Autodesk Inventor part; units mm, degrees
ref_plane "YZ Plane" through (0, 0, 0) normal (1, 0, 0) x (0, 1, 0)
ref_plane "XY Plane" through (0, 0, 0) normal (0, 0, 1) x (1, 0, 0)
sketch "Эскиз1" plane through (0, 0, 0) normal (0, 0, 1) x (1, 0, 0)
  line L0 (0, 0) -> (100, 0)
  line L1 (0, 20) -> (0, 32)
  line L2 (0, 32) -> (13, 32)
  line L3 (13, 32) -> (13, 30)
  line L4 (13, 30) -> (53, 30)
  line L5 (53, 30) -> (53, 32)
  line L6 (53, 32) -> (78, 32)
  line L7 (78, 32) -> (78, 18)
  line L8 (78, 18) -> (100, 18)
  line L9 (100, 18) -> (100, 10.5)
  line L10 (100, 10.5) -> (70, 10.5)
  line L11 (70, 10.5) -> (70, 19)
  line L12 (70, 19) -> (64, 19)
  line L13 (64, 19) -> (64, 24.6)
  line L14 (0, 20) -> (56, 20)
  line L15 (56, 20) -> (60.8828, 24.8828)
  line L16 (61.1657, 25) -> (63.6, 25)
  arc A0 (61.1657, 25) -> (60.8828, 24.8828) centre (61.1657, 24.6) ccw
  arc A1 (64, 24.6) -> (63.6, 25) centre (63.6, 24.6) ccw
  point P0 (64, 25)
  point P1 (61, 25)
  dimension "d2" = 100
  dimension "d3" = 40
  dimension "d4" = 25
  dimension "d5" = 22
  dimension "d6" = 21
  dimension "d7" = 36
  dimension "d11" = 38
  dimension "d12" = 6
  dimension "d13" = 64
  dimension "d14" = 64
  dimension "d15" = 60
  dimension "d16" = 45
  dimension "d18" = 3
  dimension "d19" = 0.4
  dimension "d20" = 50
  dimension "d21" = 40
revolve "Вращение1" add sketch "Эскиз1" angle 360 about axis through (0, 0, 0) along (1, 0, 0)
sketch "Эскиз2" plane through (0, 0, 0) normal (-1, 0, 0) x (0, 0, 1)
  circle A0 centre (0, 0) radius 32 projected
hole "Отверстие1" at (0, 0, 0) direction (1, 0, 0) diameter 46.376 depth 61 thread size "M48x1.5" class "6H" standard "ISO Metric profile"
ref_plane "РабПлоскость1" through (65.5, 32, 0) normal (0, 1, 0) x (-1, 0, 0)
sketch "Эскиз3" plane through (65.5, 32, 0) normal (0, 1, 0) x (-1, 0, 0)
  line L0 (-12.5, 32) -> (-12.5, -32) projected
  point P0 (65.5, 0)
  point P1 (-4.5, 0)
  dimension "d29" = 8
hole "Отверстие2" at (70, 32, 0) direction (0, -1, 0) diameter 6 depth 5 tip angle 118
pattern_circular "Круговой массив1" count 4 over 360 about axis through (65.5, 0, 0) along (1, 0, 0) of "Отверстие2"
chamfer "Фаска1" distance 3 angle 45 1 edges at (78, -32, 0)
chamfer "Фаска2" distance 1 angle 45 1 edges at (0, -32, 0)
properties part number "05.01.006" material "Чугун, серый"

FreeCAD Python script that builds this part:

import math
import FreeCAD as App
import Part
import Sketcher
from FreeCAD import Vector
Q = App.Units.Quantity


def edges_at(feature, points):
    """Names of the edges that pass closest to the given points."""
    edges = feature.Shape.Edges
    near = lambda p: min(range(len(edges)), key=lambda i: edges[i].distToShape(Part.Vertex(*p))[0])
    return sorted({f"Edge{near(p) + 1}" for p in points})

doc = App.newDocument("Part")
params = doc.addObject("Spreadsheet::Sheet", "Params")
for row, (alias, value) in enumerate([
    ("sketch1_radius", "0.4 mm"),
    ("sketch1_width", "6 mm"),
    ("sketch1_width2", "22 mm"),
    ("sketch1_width3", "25 mm"),
    ("sketch1_width4", "40 mm"),
    ("revolution_angle", "360 deg"),
    ("hole_diameter", "46.376 mm"),
    ("hole_depth", "61 mm"),
    ("sketch3_diameter", "6 mm"),
    ("hole2_diameter", "6 mm"),
    ("hole2_depth", "5 mm"),
    ("chamfer_size", "3 mm"),
    ("chamfer2_size", "1 mm"),
], start=1):
    params.set(f"A{row}", alias)
    params.set(f"B{row}", "=" + value)
    params.setAlias(f"B{row}", alias)

body = doc.addObject("PartDesign::Body", "Body")

# Sketch on XY plane
sketch1 = body.newObject("Sketcher::SketchObject", "Sketch")
sketch1.AttachmentSupport = (doc.getObject("XY_Plane"), [""])
sketch1.MapMode = "FlatFace"
sketch1.addGeometry(Part.LineSegment(Vector(0, 32, 0), Vector(0, 20, 0)), False)
sketch1.addGeometry(Part.LineSegment(Vector(0, 20, 0), Vector(56, 20, 0)), False)
sketch1.addGeometry(Part.LineSegment(Vector(56, 20, 0), Vector(60.88, 24.88, 0)), False)
sketch1.addGeometry(Part.ArcOfCircle(Part.Circle(Vector(61.17, 24.6, 0), Vector(0, 0, 1), 0.4), math.radians(90), math.radians(135)), False)
sketch1.addGeometry(Part.LineSegment(Vector(61.17, 25, 0), Vector(63.6, 25, 0)), False)
sketch1.addGeometry(Part.ArcOfCircle(Part.Circle(Vector(63.6, 24.6, 0), Vector(0, 0, 1), 0.4), math.radians(0), math.radians(90)), False)
sketch1.addGeometry(Part.LineSegment(Vector(64, 24.6, 0), Vector(64, 19, 0)), False)
sketch1.addGeometry(Part.LineSegment(Vector(64, 19, 0), Vector(70, 19, 0)), False)
sketch1.addGeometry(Part.LineSegment(Vector(70, 19, 0), Vector(70, 10.5, 0)), False)
sketch1.addGeometry(Part.LineSegment(Vector(70, 10.5, 0), Vector(100, 10.5, 0)), False)
sketch1.addGeometry(Part.LineSegment(Vector(100, 10.5, 0), Vector(100, 18, 0)), False)
sketch1.addGeometry(Part.LineSegment(Vector(100, 18, 0), Vector(78, 18, 0)), False)
sketch1.addGeometry(Part.LineSegment(Vector(78, 18, 0), Vector(78, 32, 0)), False)
sketch1.addGeometry(Part.LineSegment(Vector(78, 32, 0), Vector(53, 32, 0)), False)
sketch1.addGeometry(Part.LineSegment(Vector(53, 32, 0), Vector(53, 30, 0)), False)
sketch1.addGeometry(Part.LineSegment(Vector(53, 30, 0), Vector(13, 30, 0)), False)
sketch1.addGeometry(Part.LineSegment(Vector(13, 30, 0), Vector(13, 32, 0)), False)
sketch1.addGeometry(Part.LineSegment(Vector(13, 32, 0), Vector(0, 32, 0)), False)
sketch1.addConstraint(Sketcher.Constraint("Coincident", 0, 2, 1, 1))
sketch1.addConstraint(Sketcher.Constraint("Coincident", 1, 2, 2, 1))
sketch1.addConstraint(Sketcher.Constraint("Tangent", 2, 2, 3, 2))
sketch1.addConstraint(Sketcher.Constraint("Tangent", 3, 1, 4, 1))
sketch1.addConstraint(Sketcher.Constraint("Tangent", 4, 2, 5, 2))
sketch1.addConstraint(Sketcher.Constraint("Tangent", 5, 1, 6, 1))
sketch1.addConstraint(Sketcher.Constraint("Coincident", 6, 2, 7, 1))
sketch1.addConstraint(Sketcher.Constraint("Coincident", 7, 2, 8, 1))
sketch1.addConstraint(Sketcher.Constraint("Coincident", 8, 2, 9, 1))
sketch1.addConstraint(Sketcher.Constraint("Coincident", 9, 2, 10, 1))
sketch1.addConstraint(Sketcher.Constraint("Coincident", 10, 2, 11, 1))
sketch1.addConstraint(Sketcher.Constraint("Coincident", 11, 2, 12, 1))
sketch1.addConstraint(Sketcher.Constraint("Coincident", 12, 2, 13, 1))
sketch1.addConstraint(Sketcher.Constraint("Coincident", 13, 2, 14, 1))
sketch1.addConstraint(Sketcher.Constraint("Coincident", 14, 2, 15, 1))
sketch1.addConstraint(Sketcher.Constraint("Coincident", 15, 2, 16, 1))
sketch1.addConstraint(Sketcher.Constraint("Coincident", 16, 2, 17, 1))
sketch1.addConstraint(Sketcher.Constraint("Coincident", 17, 2, 0, 1))
sketch1.addConstraint(Sketcher.Constraint("Vertical", 0))
sketch1.addConstraint(Sketcher.Constraint("Horizontal", 1))
sketch1.addConstraint(Sketcher.Constraint("Horizontal", 4))
sketch1.addConstraint(Sketcher.Constraint("Vertical", 6))
sketch1.addConstraint(Sketcher.Constraint("Horizontal", 7))
sketch1.addConstraint(Sketcher.Constraint("Vertical", 8))
sketch1.addConstraint(Sketcher.Constraint("Horizontal", 9))
sketch1.addConstraint(Sketcher.Constraint("Vertical", 10))
sketch1.addConstraint(Sketcher.Constraint("Horizontal", 11))
sketch1.addConstraint(Sketcher.Constraint("Vertical", 12))
sketch1.addConstraint(Sketcher.Constraint("Horizontal", 13))
sketch1.addConstraint(Sketcher.Constraint("Vertical", 14))
sketch1.addConstraint(Sketcher.Constraint("Horizontal", 15))
sketch1.addConstraint(Sketcher.Constraint("Vertical", 16))
sketch1.addConstraint(Sketcher.Constraint("Horizontal", 17))
sketch1.addConstraint(Sketcher.Constraint("Equal", 3, 5))
sketch1.addConstraint(Sketcher.Constraint("PointOnObject", 0, 2, -2))
sketch1.addConstraint(Sketcher.Constraint("Horizontal", 13, 2, 16, 2))
sketch1.addConstraint(Sketcher.Constraint("Radius", 3, Q("0.4 mm")))
sketch1.addConstraint(Sketcher.Constraint("DistanceX", 7, 1, 7, 2, Q("6 mm")))
sketch1.addConstraint(Sketcher.Constraint("DistanceX", 11, 2, 11, 1, Q("22 mm")))
sketch1.addConstraint(Sketcher.Constraint("DistanceX", 13, 2, 13, 1, Q("25 mm")))
sketch1.addConstraint(Sketcher.Constraint("DistanceX", 15, 2, 15, 1, Q("40 mm")))
sketch1.addConstraint(Sketcher.Constraint("Angle", 2, Q("45 deg")))
sketch1.addConstraint(Sketcher.Constraint("DistanceY", -1, 1, 3, 1, Q("25 mm")))
sketch1.addConstraint(Sketcher.Constraint("DistanceX", -1, 1, 5, 1, Q("64 mm")))
sketch1.addConstraint(Sketcher.Constraint("DistanceX", -1, 1, 9, 2, Q("100 mm")))
sketch1.addConstraint(Sketcher.Constraint("DistanceY", 6, 2, 4, 2, Q("6 mm")))
sketch1.addConstraint(Sketcher.Constraint("DistanceX", 13, 2, 1, 2, Q("3 mm")))
sketch1.addConstraint(Sketcher.Constraint("DistanceY", 0, 2, 0, 1, Q("12 mm")))
sketch1.addConstraint(Sketcher.Constraint("DistanceY", 12, 1, 12, 2, Q("14 mm")))
sketch1.addConstraint(Sketcher.Constraint("DistanceY", 14, 2, 14, 1, Q("2 mm")))
sketch1.addConstraint(Sketcher.Constraint("DistanceY", 8, 2, 8, 1, Q("8.5 mm")))
sketch1.addConstraint(Sketcher.Constraint("DistanceY", 10, 1, 10, 2, Q("7.5 mm")))
sketch1.setExpression("Constraints[36]", "Params.sketch1_radius")
sketch1.setExpression("Constraints[37]", "Params.sketch1_width")
sketch1.setExpression("Constraints[38]", "Params.sketch1_width2")
sketch1.setExpression("Constraints[39]", "Params.sketch1_width3")
sketch1.setExpression("Constraints[40]", "Params.sketch1_width4")
revolution = body.newObject("PartDesign::Revolution", "Revolution")
revolution.Profile = sketch1
revolution.ReferenceAxis = (sketch1, ["H_Axis"])
revolution.setExpression("Angle", "Params.revolution_angle")

# Sketch on YZ plane
sketch2 = body.newObject("Sketcher::SketchObject", "Sketch001")
sketch2.AttachmentSupport = (doc.getObject("YZ_Plane"), [""])
sketch2.MapMode = "FlatFace"
sketch2.addGeometry(Part.Circle(Vector(0, 0, 0), Vector(0, 0, 1), 23), False)
sketch2.addConstraint(Sketcher.Constraint("Coincident", 0, 3, -1, 1))
sketch2.addConstraint(Sketcher.Constraint("Diameter", 0, Q("46.376 mm")))
doc.recompute()
hole = body.newObject("PartDesign::Hole", "Hole")
hole.Profile = sketch2
hole.ThreadType = "None"
hole.setExpression("Diameter", "Params.hole_diameter")
hole.DepthType = "Dimension"
hole.setExpression("Depth", "Params.hole_depth")
hole.DrillPoint = "Flat"
hole.Reversed = True

# Sketch on XZ plane
sketch3 = body.newObject("Sketcher::SketchObject", "Sketch002")
sketch3.AttachmentSupport = (doc.getObject("XZ_Plane"), [""])
sketch3.MapMode = "FlatFace"
sketch3.AttachmentOffset = App.Placement(Vector(0, 0, -32), App.Rotation())
sketch3.addGeometry(Part.Circle(Vector(70, 0, 0), Vector(0, 0, 1), 3), False)
sketch3.addConstraint(Sketcher.Constraint("PointOnObject", 0, 3, -1))
sketch3.addConstraint(Sketcher.Constraint("Diameter", 0, Q("6 mm")))
sketch3.addConstraint(Sketcher.Constraint("DistanceX", -1, 1, 0, 3, Q("70 mm")))
sketch3.setExpression("Constraints[1]", "Params.sketch3_diameter")
doc.recompute()
hole2 = body.newObject("PartDesign::Hole", "Hole001")
hole2.Profile = sketch3
hole2.ThreadType = "None"
hole2.setExpression("Diameter", "Params.hole2_diameter")
hole2.DepthType = "Dimension"
hole2.setExpression("Depth", "Params.hole2_depth")
hole2.DrillPoint = "Angled"
hole2.DrillPointAngle = 118
hole2.Reversed = True
doc.recompute()

polarpattern = body.newObject("PartDesign::PolarPattern", "PolarPattern")
polarpattern.Originals = [hole2]
polarpattern.Axis = (doc.getObject("X_Axis"), [""])
polarpattern.Angle = 360
polarpattern.Occurrences = 4
body.Tip = polarpattern
doc.recompute()

chamfer = body.newObject("PartDesign::Chamfer", "Chamfer")
chamfer.Base = (polarpattern, edges_at(polarpattern, [(78, -32, 0)]))
chamfer.setExpression("Size", "Params.chamfer_size")
doc.recompute()

chamfer2 = body.newObject("PartDesign::Chamfer", "Chamfer001")
chamfer2.Base = (chamfer, edges_at(chamfer, [(0, -32, 0)]))
chamfer2.setExpression("Size", "Params.chamfer2_size")

doc.recompute()
